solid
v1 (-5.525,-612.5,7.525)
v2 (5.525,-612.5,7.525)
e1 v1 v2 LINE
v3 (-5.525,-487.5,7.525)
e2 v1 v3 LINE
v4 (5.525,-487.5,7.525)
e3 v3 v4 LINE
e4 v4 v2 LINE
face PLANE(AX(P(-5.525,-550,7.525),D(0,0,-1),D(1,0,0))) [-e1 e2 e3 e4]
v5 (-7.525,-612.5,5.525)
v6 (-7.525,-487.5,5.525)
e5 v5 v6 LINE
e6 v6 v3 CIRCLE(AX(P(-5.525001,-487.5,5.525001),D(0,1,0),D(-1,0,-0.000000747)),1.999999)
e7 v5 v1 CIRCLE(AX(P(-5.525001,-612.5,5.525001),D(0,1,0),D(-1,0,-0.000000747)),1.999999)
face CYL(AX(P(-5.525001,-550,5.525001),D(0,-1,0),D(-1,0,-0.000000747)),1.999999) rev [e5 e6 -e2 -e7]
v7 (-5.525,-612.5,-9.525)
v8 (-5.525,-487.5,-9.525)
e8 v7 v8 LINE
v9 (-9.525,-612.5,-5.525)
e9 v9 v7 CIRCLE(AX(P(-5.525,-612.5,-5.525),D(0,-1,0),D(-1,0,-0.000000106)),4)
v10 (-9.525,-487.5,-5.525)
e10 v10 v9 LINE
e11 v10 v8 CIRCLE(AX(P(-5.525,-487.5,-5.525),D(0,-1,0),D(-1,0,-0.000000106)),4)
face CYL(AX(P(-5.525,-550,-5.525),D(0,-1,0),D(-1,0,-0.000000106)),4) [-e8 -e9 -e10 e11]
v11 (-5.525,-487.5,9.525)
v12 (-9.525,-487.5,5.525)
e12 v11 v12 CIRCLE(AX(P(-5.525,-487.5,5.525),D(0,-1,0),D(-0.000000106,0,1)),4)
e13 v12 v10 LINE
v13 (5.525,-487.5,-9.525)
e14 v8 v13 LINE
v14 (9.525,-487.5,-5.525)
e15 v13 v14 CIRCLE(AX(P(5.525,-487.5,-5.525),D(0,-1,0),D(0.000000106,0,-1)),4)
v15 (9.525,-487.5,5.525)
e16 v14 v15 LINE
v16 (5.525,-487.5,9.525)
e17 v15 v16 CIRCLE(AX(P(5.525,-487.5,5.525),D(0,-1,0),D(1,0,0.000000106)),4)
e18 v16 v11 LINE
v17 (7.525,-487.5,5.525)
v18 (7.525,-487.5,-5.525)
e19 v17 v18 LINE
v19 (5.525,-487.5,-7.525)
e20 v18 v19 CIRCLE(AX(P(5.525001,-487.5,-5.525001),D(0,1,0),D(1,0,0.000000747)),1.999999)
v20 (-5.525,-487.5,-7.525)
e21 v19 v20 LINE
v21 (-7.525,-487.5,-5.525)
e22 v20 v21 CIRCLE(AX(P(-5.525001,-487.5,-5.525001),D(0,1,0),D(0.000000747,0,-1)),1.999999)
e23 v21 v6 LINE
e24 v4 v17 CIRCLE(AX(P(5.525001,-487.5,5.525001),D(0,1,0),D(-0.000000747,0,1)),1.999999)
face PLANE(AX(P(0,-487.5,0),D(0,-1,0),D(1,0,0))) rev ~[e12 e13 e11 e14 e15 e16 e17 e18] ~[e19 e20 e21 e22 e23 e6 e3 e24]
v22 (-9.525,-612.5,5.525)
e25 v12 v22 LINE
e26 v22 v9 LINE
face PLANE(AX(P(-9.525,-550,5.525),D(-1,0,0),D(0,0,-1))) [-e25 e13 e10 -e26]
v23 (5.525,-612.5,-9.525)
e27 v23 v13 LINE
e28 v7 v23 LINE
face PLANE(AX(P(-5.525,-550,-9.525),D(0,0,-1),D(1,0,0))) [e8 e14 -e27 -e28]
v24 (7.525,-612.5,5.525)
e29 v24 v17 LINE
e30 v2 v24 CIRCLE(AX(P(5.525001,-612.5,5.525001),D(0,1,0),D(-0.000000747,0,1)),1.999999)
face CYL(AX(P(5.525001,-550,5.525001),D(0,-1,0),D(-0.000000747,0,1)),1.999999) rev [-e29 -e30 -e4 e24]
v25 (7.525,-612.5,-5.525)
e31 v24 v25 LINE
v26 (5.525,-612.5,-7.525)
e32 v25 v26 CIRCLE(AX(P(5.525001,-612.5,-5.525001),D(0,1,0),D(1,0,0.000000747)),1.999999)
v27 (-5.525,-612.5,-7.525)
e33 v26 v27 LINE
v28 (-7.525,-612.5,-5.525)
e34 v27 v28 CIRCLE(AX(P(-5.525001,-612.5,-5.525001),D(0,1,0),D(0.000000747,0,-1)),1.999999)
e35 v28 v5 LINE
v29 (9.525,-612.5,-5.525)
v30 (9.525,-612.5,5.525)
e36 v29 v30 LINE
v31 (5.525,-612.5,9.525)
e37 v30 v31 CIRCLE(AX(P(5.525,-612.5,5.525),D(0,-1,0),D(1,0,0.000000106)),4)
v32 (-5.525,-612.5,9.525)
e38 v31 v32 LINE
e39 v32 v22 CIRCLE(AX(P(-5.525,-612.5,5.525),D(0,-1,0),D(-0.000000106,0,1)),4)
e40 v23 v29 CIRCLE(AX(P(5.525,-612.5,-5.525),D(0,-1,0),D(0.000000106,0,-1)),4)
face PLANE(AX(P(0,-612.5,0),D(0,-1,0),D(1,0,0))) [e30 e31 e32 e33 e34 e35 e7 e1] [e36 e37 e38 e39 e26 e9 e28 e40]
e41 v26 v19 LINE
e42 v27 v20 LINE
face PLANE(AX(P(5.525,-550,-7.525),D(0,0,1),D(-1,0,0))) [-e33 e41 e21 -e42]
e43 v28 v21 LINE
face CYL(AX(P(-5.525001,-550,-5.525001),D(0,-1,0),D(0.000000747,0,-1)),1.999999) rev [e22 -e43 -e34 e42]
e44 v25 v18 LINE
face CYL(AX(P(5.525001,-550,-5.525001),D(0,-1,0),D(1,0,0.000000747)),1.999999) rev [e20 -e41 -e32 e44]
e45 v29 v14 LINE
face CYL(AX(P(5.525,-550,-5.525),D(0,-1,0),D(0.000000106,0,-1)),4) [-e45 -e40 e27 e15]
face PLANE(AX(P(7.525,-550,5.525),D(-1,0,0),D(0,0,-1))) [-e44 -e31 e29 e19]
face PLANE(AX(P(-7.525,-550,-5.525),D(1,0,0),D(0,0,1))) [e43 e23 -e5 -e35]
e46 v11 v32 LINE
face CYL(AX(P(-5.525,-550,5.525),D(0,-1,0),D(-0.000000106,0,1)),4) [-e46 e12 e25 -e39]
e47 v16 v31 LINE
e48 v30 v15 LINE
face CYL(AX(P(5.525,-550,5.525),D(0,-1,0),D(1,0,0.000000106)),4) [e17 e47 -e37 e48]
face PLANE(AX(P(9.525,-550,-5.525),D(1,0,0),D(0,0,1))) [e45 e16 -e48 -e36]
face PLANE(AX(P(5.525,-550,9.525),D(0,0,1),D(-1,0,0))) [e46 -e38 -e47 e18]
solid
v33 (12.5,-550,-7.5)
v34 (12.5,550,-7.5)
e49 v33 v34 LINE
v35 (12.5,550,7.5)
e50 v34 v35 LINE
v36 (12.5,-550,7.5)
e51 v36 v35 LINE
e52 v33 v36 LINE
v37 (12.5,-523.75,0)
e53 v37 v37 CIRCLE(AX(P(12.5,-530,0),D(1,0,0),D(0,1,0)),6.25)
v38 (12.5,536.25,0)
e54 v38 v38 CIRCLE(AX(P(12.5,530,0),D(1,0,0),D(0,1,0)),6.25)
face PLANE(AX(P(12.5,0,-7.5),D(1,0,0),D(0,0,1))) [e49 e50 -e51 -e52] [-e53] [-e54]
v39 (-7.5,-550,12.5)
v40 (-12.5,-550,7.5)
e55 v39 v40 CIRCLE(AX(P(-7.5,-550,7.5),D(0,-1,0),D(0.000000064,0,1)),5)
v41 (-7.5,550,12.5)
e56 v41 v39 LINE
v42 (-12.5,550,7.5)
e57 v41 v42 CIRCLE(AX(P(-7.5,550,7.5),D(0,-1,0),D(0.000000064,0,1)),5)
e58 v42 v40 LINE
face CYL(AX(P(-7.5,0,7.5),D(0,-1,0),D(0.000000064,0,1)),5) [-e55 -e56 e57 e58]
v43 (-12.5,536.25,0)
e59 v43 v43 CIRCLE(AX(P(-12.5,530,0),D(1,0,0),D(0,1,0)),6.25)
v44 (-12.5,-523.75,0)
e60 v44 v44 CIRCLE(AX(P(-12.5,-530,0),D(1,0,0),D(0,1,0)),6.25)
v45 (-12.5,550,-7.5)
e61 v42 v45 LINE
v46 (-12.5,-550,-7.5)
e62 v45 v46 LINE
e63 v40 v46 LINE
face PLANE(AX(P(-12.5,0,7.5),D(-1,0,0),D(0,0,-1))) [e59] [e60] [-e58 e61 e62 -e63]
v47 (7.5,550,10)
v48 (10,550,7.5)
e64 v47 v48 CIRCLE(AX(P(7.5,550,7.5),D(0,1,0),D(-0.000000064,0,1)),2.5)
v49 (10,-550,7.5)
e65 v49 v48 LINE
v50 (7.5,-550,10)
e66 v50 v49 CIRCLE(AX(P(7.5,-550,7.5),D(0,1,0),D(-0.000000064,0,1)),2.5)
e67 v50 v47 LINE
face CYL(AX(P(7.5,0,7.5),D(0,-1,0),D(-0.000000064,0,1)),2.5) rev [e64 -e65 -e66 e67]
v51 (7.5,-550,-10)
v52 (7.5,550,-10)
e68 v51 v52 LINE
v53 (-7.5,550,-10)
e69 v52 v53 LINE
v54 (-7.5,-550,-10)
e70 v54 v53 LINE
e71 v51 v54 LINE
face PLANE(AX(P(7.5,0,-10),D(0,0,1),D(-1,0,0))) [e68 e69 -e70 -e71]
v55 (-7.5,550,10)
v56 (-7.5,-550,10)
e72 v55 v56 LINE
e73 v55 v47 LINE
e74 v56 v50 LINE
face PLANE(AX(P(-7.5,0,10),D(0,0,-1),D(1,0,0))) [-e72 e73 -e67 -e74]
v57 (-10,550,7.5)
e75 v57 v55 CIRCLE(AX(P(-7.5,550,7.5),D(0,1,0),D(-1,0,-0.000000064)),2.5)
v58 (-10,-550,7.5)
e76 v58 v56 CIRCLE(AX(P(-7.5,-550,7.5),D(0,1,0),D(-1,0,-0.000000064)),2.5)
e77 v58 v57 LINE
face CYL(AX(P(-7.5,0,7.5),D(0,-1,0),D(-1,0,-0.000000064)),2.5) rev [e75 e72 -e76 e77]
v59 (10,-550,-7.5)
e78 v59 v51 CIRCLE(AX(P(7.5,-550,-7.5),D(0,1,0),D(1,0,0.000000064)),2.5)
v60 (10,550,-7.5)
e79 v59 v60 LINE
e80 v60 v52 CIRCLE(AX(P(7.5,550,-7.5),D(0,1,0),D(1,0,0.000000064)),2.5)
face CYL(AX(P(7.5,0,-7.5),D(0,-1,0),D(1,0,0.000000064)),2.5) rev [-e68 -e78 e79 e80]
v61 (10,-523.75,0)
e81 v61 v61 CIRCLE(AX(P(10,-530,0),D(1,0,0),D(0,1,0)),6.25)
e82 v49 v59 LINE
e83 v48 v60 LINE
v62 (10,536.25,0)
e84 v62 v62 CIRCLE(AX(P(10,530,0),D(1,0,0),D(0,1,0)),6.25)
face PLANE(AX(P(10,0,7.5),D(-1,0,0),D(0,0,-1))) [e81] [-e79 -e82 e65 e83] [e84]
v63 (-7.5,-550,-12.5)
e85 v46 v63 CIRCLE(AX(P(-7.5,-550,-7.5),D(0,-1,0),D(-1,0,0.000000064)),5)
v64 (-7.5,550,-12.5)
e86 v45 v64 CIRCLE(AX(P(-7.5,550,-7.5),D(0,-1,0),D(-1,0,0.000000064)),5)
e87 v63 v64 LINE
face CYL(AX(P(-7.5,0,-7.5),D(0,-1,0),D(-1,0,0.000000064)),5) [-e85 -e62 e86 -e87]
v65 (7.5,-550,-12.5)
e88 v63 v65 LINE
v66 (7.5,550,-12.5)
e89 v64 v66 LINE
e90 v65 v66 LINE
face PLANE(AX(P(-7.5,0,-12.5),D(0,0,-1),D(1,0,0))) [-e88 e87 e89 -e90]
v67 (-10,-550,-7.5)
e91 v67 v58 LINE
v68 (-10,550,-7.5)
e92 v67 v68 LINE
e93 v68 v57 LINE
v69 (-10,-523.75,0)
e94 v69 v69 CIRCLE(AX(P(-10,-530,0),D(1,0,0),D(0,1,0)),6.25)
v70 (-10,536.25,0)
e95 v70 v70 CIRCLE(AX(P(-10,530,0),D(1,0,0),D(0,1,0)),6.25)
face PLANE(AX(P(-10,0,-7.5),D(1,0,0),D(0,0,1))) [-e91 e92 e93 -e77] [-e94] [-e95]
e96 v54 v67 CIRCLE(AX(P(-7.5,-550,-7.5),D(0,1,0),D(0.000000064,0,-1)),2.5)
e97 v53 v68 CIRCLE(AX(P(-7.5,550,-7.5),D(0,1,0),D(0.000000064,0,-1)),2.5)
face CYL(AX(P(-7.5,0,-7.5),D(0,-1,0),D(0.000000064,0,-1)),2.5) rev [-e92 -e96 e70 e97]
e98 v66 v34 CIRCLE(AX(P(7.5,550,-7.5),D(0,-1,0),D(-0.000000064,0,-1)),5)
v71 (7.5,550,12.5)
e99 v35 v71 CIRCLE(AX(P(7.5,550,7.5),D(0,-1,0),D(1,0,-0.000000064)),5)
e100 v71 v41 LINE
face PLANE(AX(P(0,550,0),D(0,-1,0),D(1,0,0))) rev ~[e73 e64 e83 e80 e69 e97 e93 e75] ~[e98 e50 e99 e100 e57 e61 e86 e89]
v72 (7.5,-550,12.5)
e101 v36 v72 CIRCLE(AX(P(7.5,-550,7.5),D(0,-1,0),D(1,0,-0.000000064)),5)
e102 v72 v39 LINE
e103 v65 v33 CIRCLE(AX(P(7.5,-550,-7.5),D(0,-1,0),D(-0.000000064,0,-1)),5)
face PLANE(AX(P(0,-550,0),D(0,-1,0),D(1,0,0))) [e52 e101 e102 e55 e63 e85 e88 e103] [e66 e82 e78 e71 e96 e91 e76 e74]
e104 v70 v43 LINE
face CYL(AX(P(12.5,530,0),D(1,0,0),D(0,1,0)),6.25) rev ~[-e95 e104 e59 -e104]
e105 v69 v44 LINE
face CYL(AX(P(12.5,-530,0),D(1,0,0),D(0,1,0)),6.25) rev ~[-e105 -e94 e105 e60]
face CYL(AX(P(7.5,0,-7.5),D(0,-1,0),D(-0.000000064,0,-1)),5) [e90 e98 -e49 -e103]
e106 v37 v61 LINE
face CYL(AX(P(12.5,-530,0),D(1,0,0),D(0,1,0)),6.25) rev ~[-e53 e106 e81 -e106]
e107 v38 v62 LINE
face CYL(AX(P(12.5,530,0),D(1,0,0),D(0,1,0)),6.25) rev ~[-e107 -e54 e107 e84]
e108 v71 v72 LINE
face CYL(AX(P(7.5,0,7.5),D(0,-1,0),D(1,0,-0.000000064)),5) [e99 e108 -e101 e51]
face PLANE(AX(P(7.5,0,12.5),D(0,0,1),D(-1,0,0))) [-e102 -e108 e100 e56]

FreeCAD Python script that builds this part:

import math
import FreeCAD as App
import Part
import Sketcher
Q = App.Units.Quantity

doc = App.newDocument("Part")
body = doc.addObject("PartDesign::Body", "Body")

# Sketch on XZ plane
sketch1 = body.newObject("Sketcher::SketchObject", "Sketch")
sketch1.AttachmentSupport = (doc.getObject("XZ_Plane"), [""])
sketch1.MapMode = "FlatFace"
sketch1.addGeometry(Part.ArcOfCircle(Part.Circle(App.Vector(7.5, 7.5, 0), App.Vector(0, 0, 1), 5), math.radians(0), math.radians(90)), False)
sketch1.addGeometry(Part.LineSegment(App.Vector(7.5, 12.5, 0), App.Vector(-7.5, 12.5, 0)), False)
sketch1.addGeometry(Part.ArcOfCircle(Part.Circle(App.Vector(-7.5, 7.5, 0), App.Vector(0, 0, 1), 5), math.radians(90), math.radians(180)), False)
sketch1.addGeometry(Part.LineSegment(App.Vector(-12.5, 7.5, 0), App.Vector(-12.5, -7.5, 0)), False)
sketch1.addGeometry(Part.ArcOfCircle(Part.Circle(App.Vector(-7.5, -7.5, 0), App.Vector(0, 0, 1), 5), math.radians(180), math.radians(270)), False)
sketch1.addGeometry(Part.LineSegment(App.Vector(-7.5, -12.5, 0), App.Vector(7.5, -12.5, 0)), False)
sketch1.addGeometry(Part.ArcOfCircle(Part.Circle(App.Vector(7.5, -7.5, 0), App.Vector(0, 0, 1), 5), math.radians(-90), math.radians(0)), False)
sketch1.addGeometry(Part.LineSegment(App.Vector(12.5, -7.5, 0), App.Vector(12.5, 7.5, 0)), False)
sketch1.addGeometry(Part.ArcOfCircle(Part.Circle(App.Vector(-7.5, 7.5, 0), App.Vector(0, 0, 1), 2.5), math.radians(90), math.radians(180)), False)
sketch1.addGeometry(Part.LineSegment(App.Vector(-7.5, 10, 0), App.Vector(7.5, 10, 0)), False)
sketch1.addGeometry(Part.ArcOfCircle(Part.Circle(App.Vector(7.5, 7.5, 0), App.Vector(0, 0, 1), 2.5), math.radians(0), math.radians(90)), False)
sketch1.addGeometry(Part.LineSegment(App.Vector(10, 7.5, 0), App.Vector(10, -7.5, 0)), False)
sketch1.addGeometry(Part.ArcOfCircle(Part.Circle(App.Vector(7.5, -7.5, 0), App.Vector(0, 0, 1), 2.5), math.radians(-90), math.radians(0)), False)
sketch1.addGeometry(Part.LineSegment(App.Vector(7.5, -10, 0), App.Vector(-7.5, -10, 0)), False)
sketch1.addGeometry(Part.ArcOfCircle(Part.Circle(App.Vector(-7.5, -7.5, 0), App.Vector(0, 0, 1), 2.5), math.radians(180), math.radians(270)), False)
sketch1.addGeometry(Part.LineSegment(App.Vector(-10, -7.5, 0), App.Vector(-10, 7.5, 0)), False)
sketch1.addConstraint(Sketcher.Constraint("Tangent", 0, 2, 1, 1))
sketch1.addConstraint(Sketcher.Constraint("Tangent", 1, 2, 2, 1))
sketch1.addConstraint(Sketcher.Constraint("Tangent", 2, 2, 3, 1))
sketch1.addConstraint(Sketcher.Constraint("Tangent", 3, 2, 4, 1))
sketch1.addConstraint(Sketcher.Constraint("Tangent", 4, 2, 5, 1))
sketch1.addConstraint(Sketcher.Constraint("Tangent", 5, 2, 6, 1))
sketch1.addConstraint(Sketcher.Constraint("Tangent", 6, 2, 7, 1))
sketch1.addConstraint(Sketcher.Constraint("Tangent", 7, 2, 0, 1))
sketch1.addConstraint(Sketcher.Constraint("Tangent", 8, 1, 9, 1))
sketch1.addConstraint(Sketcher.Constraint("Tangent", 9, 2, 10, 2))
sketch1.addConstraint(Sketcher.Constraint("Tangent", 10, 1, 11, 1))
sketch1.addConstraint(Sketcher.Constraint("Tangent", 11, 2, 12, 2))
sketch1.addConstraint(Sketcher.Constraint("Tangent", 12, 1, 13, 1))
sketch1.addConstraint(Sketcher.Constraint("Tangent", 13, 2, 14, 2))
sketch1.addConstraint(Sketcher.Constraint("Tangent", 14, 1, 15, 1))
sketch1.addConstraint(Sketcher.Constraint("Tangent", 15, 2, 8, 2))
sketch1.addConstraint(Sketcher.Constraint("Horizontal", 1))
sketch1.addConstraint(Sketcher.Constraint("Vertical", 3))
sketch1.addConstraint(Sketcher.Constraint("Horizontal", 5))
sketch1.addConstraint(Sketcher.Constraint("Vertical", 7))
sketch1.addConstraint(Sketcher.Constraint("Horizontal", 9))
sketch1.addConstraint(Sketcher.Constraint("Vertical", 11))
sketch1.addConstraint(Sketcher.Constraint("Horizontal", 13))
sketch1.addConstraint(Sketcher.Constraint("Vertical", 15))
sketch1.addConstraint(Sketcher.Constraint("Coincident", 8, 3, 2, 3))
sketch1.addConstraint(Sketcher.Constraint("Coincident", 10, 3, 0, 3))
sketch1.addConstraint(Sketcher.Constraint("Coincident", 12, 3, 6, 3))
sketch1.addConstraint(Sketcher.Constraint("Equal", 0, 2))
sketch1.addConstraint(Sketcher.Constraint("Equal", 2, 4))
sketch1.addConstraint(Sketcher.Constraint("Equal", 4, 6))
sketch1.addConstraint(Sketcher.Constraint("Equal", 12, 14))
sketch1.addConstraint(Sketcher.Constraint("Symmetric", 0, 3, 4, 3, -1, 1))
sketch1.addConstraint(Sketcher.Constraint("Equal", 13, 3))
sketch1.addConstraint(Sketcher.Constraint("Radius", 0, Q("5 mm")))
sketch1.addConstraint(Sketcher.Constraint("Radius", 8, Q("2.5 mm")))
sketch1.addConstraint(Sketcher.Constraint("DistanceX", 1, 2, 1, 1, Q("15 mm")))
pad1 = body.newObject("PartDesign::Pad", "Pad")
pad1.Profile = sketch1
pad1.Length = 1100
pad1.Midplane = True

# Sketch on YZ plane
sketch2 = body.newObject("Sketcher::SketchObject", "Sketch001")
sketch2.AttachmentSupport = (doc.getObject("YZ_Plane"), [""])
sketch2.MapMode = "FlatFace"
sketch2.AttachmentOffset = App.Placement(App.Vector(0, 0, 12.5), App.Rotation())
sketch2.addGeometry(Part.Circle(App.Vector(-530, 0, 0), App.Vector(0, 0, 1), 6), False)
sketch2.addGeometry(Part.Circle(App.Vector(530, 0, 0), App.Vector(0, 0, 1), 6), False)
sketch2.addConstraint(Sketcher.Constraint("Equal", 0, 1))
sketch2.addConstraint(Sketcher.Constraint("Symmetric", 0, 3, 1, 3, -1, 1))
sketch2.addConstraint(Sketcher.Constraint("PointOnObject", 0, 3, -1))
sketch2.addConstraint(Sketcher.Constraint("Diameter", 0, Q("12.5 mm")))
sketch2.addConstraint(Sketcher.Constraint("DistanceX", 0, 3, -1, 1, Q("530 mm")))
pocket1 = body.newObject("PartDesign::Pocket", "Pocket")
pocket1.Profile = sketch2
pocket1.Type = "ThroughAll"
body2 = doc.addObject("PartDesign::Body", "Body001")

# Sketch on XZ plane
sketch3 = body2.newObject("Sketcher::SketchObject", "Sketch002")
sketch3.AttachmentSupport = (doc.getObject("XZ_Plane001"), [""])
sketch3.MapMode = "FlatFace"
sketch3.AttachmentOffset = App.Placement(App.Vector(0, 0, 550), App.Rotation())
sketch3.addGeometry(Part.ArcOfCircle(Part.Circle(App.Vector(5.5, 5.5, 0), App.Vector(0, 0, 1), 4), math.radians(0), math.radians(90)), False)
sketch3.addGeometry(Part.LineSegment(App.Vector(5.5, 9.5, 0), App.Vector(-5.5, 9.5, 0)), False)
sketch3.addGeometry(Part.ArcOfCircle(Part.Circle(App.Vector(-5.5, 5.5, 0), App.Vector(0, 0, 1), 4), math.radians(90), math.radians(180)), False)
sketch3.addGeometry(Part.LineSegment(App.Vector(-9.5, 5.5, 0), App.Vector(-9.5, -5.5, 0)), False)
sketch3.addGeometry(Part.ArcOfCircle(Part.Circle(App.Vector(-5.5, -5.5, 0), App.Vector(0, 0, 1), 4), math.radians(-180), math.radians(-90)), False)
sketch3.addGeometry(Part.LineSegment(App.Vector(-5.5, -9.5, 0), App.Vector(5.5, -9.5, 0)), False)
sketch3.addGeometry(Part.ArcOfCircle(Part.Circle(App.Vector(5.5, -5.5, 0), App.Vector(0, 0, 1), 4), math.radians(-90), math.radians(0)), False)
sketch3.addGeometry(Part.LineSegment(App.Vector(9.5, -5.5, 0), App.Vector(9.5, 5.5, 0)), False)
sketch3.addGeometry(Part.LineSegment(App.Vector(-5.5, 7.5, 0), App.Vector(5.5, 7.5, 0)), False)
sketch3.addGeometry(Part.ArcOfCircle(Part.Circle(App.Vector(5.5, 5.5, 0), App.Vector(0, 0, 1), 2), math.radians(0), math.radians(90)), False)
sketch3.addGeometry(Part.LineSegment(App.Vector(7.5, 5.5, 0), App.Vector(7.5, -5.5, 0)), False)
sketch3.addGeometry(Part.ArcOfCircle(Part.Circle(App.Vector(5.5, -5.5, 0), App.Vector(0, 0, 1), 2), math.radians(-90), math.radians(0)), False)
sketch3.addGeometry(Part.LineSegment(App.Vector(5.5, -7.5, 0), App.Vector(-5.5, -7.5, 0)), False)
sketch3.addGeometry(Part.ArcOfCircle(Part.Circle(App.Vector(-5.5, -5.5, 0), App.Vector(0, 0, 1), 2), math.radians(180), math.radians(270)), False)
sketch3.addGeometry(Part.LineSegment(App.Vector(-7.5, -5.5, 0), App.Vector(-7.5, 5.5, 0)), False)
sketch3.addGeometry(Part.ArcOfCircle(Part.Circle(App.Vector(-5.5, 5.5, 0), App.Vector(0, 0, 1), 2), math.radians(90), math.radians(180)), False)
sketch3.addConstraint(Sketcher.Constraint("Tangent", 0, 2, 1, 1))
sketch3.addConstraint(Sketcher.Constraint("Tangent", 1, 2, 2, 1))
sketch3.addConstraint(Sketcher.Constraint("Tangent", 2, 2, 3, 1))
sketch3.addConstraint(Sketcher.Constraint("Tangent", 3, 2, 4, 1))
sketch3.addConstraint(Sketcher.Constraint("Tangent", 4, 2, 5, 1))
sketch3.addConstraint(Sketcher.Constraint("Tangent", 5, 2, 6, 1))
sketch3.addConstraint(Sketcher.Constraint("Tangent", 6, 2, 7, 1))
sketch3.addConstraint(Sketcher.Constraint("Tangent", 7, 2, 0, 1))
sketch3.addConstraint(Sketcher.Constraint("Tangent", 8, 2, 9, 2))
sketch3.addConstraint(Sketcher.Constraint("Tangent", 9, 1, 10, 1))
sketch3.addConstraint(Sketcher.Constraint("Tangent", 10, 2, 11, 2))
sketch3.addConstraint(Sketcher.Constraint("Tangent", 11, 1, 12, 1))
sketch3.addConstraint(Sketcher.Constraint("Tangent", 12, 2, 13, 2))
sketch3.addConstraint(Sketcher.Constraint("Tangent", 13, 1, 14, 1))
sketch3.addConstraint(Sketcher.Constraint("Tangent", 14, 2, 15, 2))
sketch3.addConstraint(Sketcher.Constraint("Tangent", 15, 1, 8, 1))
sketch3.addConstraint(Sketcher.Constraint("Horizontal", 1))
sketch3.addConstraint(Sketcher.Constraint("Vertical", 3))
sketch3.addConstraint(Sketcher.Constraint("Horizontal", 5))
sketch3.addConstraint(Sketcher.Constraint("Vertical", 7))
sketch3.addConstraint(Sketcher.Constraint("Horizontal", 8))
sketch3.addConstraint(Sketcher.Constraint("Vertical", 10))
sketch3.addConstraint(Sketcher.Constraint("Horizontal", 12))
sketch3.addConstraint(Sketcher.Constraint("Vertical", 14))
sketch3.addConstraint(Sketcher.Constraint("Coincident", 9, 3, 0, 3))
sketch3.addConstraint(Sketcher.Constraint("Coincident", 11, 3, 6, 3))
sketch3.addConstraint(Sketcher.Constraint("Coincident", 13, 3, 4, 3))
sketch3.addConstraint(Sketcher.Constraint("Equal", 0, 2))
sketch3.addConstraint(Sketcher.Constraint("Equal", 2, 4))
sketch3.addConstraint(Sketcher.Constraint("Equal", 4, 6))
sketch3.addConstraint(Sketcher.Constraint("Equal", 13, 15))
sketch3.addConstraint(Sketcher.Constraint("Symmetric", 0, 3, 4, 3, -1, 1))
sketch3.addConstraint(Sketcher.Constraint("Equal", 12, 3))
sketch3.addConstraint(Sketcher.Constraint("Radius", 0, Q("4 mm")))
sketch3.addConstraint(Sketcher.Constraint("Radius", 9, Q("1.999999 mm")))
sketch3.addConstraint(Sketcher.Constraint("DistanceX", 1, 2, 1, 1, Q("11.05 mm")))
pad2 = body2.newObject("PartDesign::Pad", "Pad001")
pad2.Profile = sketch3
pad2.Length = 125
pad2.Midplane = True

doc.recompute()
